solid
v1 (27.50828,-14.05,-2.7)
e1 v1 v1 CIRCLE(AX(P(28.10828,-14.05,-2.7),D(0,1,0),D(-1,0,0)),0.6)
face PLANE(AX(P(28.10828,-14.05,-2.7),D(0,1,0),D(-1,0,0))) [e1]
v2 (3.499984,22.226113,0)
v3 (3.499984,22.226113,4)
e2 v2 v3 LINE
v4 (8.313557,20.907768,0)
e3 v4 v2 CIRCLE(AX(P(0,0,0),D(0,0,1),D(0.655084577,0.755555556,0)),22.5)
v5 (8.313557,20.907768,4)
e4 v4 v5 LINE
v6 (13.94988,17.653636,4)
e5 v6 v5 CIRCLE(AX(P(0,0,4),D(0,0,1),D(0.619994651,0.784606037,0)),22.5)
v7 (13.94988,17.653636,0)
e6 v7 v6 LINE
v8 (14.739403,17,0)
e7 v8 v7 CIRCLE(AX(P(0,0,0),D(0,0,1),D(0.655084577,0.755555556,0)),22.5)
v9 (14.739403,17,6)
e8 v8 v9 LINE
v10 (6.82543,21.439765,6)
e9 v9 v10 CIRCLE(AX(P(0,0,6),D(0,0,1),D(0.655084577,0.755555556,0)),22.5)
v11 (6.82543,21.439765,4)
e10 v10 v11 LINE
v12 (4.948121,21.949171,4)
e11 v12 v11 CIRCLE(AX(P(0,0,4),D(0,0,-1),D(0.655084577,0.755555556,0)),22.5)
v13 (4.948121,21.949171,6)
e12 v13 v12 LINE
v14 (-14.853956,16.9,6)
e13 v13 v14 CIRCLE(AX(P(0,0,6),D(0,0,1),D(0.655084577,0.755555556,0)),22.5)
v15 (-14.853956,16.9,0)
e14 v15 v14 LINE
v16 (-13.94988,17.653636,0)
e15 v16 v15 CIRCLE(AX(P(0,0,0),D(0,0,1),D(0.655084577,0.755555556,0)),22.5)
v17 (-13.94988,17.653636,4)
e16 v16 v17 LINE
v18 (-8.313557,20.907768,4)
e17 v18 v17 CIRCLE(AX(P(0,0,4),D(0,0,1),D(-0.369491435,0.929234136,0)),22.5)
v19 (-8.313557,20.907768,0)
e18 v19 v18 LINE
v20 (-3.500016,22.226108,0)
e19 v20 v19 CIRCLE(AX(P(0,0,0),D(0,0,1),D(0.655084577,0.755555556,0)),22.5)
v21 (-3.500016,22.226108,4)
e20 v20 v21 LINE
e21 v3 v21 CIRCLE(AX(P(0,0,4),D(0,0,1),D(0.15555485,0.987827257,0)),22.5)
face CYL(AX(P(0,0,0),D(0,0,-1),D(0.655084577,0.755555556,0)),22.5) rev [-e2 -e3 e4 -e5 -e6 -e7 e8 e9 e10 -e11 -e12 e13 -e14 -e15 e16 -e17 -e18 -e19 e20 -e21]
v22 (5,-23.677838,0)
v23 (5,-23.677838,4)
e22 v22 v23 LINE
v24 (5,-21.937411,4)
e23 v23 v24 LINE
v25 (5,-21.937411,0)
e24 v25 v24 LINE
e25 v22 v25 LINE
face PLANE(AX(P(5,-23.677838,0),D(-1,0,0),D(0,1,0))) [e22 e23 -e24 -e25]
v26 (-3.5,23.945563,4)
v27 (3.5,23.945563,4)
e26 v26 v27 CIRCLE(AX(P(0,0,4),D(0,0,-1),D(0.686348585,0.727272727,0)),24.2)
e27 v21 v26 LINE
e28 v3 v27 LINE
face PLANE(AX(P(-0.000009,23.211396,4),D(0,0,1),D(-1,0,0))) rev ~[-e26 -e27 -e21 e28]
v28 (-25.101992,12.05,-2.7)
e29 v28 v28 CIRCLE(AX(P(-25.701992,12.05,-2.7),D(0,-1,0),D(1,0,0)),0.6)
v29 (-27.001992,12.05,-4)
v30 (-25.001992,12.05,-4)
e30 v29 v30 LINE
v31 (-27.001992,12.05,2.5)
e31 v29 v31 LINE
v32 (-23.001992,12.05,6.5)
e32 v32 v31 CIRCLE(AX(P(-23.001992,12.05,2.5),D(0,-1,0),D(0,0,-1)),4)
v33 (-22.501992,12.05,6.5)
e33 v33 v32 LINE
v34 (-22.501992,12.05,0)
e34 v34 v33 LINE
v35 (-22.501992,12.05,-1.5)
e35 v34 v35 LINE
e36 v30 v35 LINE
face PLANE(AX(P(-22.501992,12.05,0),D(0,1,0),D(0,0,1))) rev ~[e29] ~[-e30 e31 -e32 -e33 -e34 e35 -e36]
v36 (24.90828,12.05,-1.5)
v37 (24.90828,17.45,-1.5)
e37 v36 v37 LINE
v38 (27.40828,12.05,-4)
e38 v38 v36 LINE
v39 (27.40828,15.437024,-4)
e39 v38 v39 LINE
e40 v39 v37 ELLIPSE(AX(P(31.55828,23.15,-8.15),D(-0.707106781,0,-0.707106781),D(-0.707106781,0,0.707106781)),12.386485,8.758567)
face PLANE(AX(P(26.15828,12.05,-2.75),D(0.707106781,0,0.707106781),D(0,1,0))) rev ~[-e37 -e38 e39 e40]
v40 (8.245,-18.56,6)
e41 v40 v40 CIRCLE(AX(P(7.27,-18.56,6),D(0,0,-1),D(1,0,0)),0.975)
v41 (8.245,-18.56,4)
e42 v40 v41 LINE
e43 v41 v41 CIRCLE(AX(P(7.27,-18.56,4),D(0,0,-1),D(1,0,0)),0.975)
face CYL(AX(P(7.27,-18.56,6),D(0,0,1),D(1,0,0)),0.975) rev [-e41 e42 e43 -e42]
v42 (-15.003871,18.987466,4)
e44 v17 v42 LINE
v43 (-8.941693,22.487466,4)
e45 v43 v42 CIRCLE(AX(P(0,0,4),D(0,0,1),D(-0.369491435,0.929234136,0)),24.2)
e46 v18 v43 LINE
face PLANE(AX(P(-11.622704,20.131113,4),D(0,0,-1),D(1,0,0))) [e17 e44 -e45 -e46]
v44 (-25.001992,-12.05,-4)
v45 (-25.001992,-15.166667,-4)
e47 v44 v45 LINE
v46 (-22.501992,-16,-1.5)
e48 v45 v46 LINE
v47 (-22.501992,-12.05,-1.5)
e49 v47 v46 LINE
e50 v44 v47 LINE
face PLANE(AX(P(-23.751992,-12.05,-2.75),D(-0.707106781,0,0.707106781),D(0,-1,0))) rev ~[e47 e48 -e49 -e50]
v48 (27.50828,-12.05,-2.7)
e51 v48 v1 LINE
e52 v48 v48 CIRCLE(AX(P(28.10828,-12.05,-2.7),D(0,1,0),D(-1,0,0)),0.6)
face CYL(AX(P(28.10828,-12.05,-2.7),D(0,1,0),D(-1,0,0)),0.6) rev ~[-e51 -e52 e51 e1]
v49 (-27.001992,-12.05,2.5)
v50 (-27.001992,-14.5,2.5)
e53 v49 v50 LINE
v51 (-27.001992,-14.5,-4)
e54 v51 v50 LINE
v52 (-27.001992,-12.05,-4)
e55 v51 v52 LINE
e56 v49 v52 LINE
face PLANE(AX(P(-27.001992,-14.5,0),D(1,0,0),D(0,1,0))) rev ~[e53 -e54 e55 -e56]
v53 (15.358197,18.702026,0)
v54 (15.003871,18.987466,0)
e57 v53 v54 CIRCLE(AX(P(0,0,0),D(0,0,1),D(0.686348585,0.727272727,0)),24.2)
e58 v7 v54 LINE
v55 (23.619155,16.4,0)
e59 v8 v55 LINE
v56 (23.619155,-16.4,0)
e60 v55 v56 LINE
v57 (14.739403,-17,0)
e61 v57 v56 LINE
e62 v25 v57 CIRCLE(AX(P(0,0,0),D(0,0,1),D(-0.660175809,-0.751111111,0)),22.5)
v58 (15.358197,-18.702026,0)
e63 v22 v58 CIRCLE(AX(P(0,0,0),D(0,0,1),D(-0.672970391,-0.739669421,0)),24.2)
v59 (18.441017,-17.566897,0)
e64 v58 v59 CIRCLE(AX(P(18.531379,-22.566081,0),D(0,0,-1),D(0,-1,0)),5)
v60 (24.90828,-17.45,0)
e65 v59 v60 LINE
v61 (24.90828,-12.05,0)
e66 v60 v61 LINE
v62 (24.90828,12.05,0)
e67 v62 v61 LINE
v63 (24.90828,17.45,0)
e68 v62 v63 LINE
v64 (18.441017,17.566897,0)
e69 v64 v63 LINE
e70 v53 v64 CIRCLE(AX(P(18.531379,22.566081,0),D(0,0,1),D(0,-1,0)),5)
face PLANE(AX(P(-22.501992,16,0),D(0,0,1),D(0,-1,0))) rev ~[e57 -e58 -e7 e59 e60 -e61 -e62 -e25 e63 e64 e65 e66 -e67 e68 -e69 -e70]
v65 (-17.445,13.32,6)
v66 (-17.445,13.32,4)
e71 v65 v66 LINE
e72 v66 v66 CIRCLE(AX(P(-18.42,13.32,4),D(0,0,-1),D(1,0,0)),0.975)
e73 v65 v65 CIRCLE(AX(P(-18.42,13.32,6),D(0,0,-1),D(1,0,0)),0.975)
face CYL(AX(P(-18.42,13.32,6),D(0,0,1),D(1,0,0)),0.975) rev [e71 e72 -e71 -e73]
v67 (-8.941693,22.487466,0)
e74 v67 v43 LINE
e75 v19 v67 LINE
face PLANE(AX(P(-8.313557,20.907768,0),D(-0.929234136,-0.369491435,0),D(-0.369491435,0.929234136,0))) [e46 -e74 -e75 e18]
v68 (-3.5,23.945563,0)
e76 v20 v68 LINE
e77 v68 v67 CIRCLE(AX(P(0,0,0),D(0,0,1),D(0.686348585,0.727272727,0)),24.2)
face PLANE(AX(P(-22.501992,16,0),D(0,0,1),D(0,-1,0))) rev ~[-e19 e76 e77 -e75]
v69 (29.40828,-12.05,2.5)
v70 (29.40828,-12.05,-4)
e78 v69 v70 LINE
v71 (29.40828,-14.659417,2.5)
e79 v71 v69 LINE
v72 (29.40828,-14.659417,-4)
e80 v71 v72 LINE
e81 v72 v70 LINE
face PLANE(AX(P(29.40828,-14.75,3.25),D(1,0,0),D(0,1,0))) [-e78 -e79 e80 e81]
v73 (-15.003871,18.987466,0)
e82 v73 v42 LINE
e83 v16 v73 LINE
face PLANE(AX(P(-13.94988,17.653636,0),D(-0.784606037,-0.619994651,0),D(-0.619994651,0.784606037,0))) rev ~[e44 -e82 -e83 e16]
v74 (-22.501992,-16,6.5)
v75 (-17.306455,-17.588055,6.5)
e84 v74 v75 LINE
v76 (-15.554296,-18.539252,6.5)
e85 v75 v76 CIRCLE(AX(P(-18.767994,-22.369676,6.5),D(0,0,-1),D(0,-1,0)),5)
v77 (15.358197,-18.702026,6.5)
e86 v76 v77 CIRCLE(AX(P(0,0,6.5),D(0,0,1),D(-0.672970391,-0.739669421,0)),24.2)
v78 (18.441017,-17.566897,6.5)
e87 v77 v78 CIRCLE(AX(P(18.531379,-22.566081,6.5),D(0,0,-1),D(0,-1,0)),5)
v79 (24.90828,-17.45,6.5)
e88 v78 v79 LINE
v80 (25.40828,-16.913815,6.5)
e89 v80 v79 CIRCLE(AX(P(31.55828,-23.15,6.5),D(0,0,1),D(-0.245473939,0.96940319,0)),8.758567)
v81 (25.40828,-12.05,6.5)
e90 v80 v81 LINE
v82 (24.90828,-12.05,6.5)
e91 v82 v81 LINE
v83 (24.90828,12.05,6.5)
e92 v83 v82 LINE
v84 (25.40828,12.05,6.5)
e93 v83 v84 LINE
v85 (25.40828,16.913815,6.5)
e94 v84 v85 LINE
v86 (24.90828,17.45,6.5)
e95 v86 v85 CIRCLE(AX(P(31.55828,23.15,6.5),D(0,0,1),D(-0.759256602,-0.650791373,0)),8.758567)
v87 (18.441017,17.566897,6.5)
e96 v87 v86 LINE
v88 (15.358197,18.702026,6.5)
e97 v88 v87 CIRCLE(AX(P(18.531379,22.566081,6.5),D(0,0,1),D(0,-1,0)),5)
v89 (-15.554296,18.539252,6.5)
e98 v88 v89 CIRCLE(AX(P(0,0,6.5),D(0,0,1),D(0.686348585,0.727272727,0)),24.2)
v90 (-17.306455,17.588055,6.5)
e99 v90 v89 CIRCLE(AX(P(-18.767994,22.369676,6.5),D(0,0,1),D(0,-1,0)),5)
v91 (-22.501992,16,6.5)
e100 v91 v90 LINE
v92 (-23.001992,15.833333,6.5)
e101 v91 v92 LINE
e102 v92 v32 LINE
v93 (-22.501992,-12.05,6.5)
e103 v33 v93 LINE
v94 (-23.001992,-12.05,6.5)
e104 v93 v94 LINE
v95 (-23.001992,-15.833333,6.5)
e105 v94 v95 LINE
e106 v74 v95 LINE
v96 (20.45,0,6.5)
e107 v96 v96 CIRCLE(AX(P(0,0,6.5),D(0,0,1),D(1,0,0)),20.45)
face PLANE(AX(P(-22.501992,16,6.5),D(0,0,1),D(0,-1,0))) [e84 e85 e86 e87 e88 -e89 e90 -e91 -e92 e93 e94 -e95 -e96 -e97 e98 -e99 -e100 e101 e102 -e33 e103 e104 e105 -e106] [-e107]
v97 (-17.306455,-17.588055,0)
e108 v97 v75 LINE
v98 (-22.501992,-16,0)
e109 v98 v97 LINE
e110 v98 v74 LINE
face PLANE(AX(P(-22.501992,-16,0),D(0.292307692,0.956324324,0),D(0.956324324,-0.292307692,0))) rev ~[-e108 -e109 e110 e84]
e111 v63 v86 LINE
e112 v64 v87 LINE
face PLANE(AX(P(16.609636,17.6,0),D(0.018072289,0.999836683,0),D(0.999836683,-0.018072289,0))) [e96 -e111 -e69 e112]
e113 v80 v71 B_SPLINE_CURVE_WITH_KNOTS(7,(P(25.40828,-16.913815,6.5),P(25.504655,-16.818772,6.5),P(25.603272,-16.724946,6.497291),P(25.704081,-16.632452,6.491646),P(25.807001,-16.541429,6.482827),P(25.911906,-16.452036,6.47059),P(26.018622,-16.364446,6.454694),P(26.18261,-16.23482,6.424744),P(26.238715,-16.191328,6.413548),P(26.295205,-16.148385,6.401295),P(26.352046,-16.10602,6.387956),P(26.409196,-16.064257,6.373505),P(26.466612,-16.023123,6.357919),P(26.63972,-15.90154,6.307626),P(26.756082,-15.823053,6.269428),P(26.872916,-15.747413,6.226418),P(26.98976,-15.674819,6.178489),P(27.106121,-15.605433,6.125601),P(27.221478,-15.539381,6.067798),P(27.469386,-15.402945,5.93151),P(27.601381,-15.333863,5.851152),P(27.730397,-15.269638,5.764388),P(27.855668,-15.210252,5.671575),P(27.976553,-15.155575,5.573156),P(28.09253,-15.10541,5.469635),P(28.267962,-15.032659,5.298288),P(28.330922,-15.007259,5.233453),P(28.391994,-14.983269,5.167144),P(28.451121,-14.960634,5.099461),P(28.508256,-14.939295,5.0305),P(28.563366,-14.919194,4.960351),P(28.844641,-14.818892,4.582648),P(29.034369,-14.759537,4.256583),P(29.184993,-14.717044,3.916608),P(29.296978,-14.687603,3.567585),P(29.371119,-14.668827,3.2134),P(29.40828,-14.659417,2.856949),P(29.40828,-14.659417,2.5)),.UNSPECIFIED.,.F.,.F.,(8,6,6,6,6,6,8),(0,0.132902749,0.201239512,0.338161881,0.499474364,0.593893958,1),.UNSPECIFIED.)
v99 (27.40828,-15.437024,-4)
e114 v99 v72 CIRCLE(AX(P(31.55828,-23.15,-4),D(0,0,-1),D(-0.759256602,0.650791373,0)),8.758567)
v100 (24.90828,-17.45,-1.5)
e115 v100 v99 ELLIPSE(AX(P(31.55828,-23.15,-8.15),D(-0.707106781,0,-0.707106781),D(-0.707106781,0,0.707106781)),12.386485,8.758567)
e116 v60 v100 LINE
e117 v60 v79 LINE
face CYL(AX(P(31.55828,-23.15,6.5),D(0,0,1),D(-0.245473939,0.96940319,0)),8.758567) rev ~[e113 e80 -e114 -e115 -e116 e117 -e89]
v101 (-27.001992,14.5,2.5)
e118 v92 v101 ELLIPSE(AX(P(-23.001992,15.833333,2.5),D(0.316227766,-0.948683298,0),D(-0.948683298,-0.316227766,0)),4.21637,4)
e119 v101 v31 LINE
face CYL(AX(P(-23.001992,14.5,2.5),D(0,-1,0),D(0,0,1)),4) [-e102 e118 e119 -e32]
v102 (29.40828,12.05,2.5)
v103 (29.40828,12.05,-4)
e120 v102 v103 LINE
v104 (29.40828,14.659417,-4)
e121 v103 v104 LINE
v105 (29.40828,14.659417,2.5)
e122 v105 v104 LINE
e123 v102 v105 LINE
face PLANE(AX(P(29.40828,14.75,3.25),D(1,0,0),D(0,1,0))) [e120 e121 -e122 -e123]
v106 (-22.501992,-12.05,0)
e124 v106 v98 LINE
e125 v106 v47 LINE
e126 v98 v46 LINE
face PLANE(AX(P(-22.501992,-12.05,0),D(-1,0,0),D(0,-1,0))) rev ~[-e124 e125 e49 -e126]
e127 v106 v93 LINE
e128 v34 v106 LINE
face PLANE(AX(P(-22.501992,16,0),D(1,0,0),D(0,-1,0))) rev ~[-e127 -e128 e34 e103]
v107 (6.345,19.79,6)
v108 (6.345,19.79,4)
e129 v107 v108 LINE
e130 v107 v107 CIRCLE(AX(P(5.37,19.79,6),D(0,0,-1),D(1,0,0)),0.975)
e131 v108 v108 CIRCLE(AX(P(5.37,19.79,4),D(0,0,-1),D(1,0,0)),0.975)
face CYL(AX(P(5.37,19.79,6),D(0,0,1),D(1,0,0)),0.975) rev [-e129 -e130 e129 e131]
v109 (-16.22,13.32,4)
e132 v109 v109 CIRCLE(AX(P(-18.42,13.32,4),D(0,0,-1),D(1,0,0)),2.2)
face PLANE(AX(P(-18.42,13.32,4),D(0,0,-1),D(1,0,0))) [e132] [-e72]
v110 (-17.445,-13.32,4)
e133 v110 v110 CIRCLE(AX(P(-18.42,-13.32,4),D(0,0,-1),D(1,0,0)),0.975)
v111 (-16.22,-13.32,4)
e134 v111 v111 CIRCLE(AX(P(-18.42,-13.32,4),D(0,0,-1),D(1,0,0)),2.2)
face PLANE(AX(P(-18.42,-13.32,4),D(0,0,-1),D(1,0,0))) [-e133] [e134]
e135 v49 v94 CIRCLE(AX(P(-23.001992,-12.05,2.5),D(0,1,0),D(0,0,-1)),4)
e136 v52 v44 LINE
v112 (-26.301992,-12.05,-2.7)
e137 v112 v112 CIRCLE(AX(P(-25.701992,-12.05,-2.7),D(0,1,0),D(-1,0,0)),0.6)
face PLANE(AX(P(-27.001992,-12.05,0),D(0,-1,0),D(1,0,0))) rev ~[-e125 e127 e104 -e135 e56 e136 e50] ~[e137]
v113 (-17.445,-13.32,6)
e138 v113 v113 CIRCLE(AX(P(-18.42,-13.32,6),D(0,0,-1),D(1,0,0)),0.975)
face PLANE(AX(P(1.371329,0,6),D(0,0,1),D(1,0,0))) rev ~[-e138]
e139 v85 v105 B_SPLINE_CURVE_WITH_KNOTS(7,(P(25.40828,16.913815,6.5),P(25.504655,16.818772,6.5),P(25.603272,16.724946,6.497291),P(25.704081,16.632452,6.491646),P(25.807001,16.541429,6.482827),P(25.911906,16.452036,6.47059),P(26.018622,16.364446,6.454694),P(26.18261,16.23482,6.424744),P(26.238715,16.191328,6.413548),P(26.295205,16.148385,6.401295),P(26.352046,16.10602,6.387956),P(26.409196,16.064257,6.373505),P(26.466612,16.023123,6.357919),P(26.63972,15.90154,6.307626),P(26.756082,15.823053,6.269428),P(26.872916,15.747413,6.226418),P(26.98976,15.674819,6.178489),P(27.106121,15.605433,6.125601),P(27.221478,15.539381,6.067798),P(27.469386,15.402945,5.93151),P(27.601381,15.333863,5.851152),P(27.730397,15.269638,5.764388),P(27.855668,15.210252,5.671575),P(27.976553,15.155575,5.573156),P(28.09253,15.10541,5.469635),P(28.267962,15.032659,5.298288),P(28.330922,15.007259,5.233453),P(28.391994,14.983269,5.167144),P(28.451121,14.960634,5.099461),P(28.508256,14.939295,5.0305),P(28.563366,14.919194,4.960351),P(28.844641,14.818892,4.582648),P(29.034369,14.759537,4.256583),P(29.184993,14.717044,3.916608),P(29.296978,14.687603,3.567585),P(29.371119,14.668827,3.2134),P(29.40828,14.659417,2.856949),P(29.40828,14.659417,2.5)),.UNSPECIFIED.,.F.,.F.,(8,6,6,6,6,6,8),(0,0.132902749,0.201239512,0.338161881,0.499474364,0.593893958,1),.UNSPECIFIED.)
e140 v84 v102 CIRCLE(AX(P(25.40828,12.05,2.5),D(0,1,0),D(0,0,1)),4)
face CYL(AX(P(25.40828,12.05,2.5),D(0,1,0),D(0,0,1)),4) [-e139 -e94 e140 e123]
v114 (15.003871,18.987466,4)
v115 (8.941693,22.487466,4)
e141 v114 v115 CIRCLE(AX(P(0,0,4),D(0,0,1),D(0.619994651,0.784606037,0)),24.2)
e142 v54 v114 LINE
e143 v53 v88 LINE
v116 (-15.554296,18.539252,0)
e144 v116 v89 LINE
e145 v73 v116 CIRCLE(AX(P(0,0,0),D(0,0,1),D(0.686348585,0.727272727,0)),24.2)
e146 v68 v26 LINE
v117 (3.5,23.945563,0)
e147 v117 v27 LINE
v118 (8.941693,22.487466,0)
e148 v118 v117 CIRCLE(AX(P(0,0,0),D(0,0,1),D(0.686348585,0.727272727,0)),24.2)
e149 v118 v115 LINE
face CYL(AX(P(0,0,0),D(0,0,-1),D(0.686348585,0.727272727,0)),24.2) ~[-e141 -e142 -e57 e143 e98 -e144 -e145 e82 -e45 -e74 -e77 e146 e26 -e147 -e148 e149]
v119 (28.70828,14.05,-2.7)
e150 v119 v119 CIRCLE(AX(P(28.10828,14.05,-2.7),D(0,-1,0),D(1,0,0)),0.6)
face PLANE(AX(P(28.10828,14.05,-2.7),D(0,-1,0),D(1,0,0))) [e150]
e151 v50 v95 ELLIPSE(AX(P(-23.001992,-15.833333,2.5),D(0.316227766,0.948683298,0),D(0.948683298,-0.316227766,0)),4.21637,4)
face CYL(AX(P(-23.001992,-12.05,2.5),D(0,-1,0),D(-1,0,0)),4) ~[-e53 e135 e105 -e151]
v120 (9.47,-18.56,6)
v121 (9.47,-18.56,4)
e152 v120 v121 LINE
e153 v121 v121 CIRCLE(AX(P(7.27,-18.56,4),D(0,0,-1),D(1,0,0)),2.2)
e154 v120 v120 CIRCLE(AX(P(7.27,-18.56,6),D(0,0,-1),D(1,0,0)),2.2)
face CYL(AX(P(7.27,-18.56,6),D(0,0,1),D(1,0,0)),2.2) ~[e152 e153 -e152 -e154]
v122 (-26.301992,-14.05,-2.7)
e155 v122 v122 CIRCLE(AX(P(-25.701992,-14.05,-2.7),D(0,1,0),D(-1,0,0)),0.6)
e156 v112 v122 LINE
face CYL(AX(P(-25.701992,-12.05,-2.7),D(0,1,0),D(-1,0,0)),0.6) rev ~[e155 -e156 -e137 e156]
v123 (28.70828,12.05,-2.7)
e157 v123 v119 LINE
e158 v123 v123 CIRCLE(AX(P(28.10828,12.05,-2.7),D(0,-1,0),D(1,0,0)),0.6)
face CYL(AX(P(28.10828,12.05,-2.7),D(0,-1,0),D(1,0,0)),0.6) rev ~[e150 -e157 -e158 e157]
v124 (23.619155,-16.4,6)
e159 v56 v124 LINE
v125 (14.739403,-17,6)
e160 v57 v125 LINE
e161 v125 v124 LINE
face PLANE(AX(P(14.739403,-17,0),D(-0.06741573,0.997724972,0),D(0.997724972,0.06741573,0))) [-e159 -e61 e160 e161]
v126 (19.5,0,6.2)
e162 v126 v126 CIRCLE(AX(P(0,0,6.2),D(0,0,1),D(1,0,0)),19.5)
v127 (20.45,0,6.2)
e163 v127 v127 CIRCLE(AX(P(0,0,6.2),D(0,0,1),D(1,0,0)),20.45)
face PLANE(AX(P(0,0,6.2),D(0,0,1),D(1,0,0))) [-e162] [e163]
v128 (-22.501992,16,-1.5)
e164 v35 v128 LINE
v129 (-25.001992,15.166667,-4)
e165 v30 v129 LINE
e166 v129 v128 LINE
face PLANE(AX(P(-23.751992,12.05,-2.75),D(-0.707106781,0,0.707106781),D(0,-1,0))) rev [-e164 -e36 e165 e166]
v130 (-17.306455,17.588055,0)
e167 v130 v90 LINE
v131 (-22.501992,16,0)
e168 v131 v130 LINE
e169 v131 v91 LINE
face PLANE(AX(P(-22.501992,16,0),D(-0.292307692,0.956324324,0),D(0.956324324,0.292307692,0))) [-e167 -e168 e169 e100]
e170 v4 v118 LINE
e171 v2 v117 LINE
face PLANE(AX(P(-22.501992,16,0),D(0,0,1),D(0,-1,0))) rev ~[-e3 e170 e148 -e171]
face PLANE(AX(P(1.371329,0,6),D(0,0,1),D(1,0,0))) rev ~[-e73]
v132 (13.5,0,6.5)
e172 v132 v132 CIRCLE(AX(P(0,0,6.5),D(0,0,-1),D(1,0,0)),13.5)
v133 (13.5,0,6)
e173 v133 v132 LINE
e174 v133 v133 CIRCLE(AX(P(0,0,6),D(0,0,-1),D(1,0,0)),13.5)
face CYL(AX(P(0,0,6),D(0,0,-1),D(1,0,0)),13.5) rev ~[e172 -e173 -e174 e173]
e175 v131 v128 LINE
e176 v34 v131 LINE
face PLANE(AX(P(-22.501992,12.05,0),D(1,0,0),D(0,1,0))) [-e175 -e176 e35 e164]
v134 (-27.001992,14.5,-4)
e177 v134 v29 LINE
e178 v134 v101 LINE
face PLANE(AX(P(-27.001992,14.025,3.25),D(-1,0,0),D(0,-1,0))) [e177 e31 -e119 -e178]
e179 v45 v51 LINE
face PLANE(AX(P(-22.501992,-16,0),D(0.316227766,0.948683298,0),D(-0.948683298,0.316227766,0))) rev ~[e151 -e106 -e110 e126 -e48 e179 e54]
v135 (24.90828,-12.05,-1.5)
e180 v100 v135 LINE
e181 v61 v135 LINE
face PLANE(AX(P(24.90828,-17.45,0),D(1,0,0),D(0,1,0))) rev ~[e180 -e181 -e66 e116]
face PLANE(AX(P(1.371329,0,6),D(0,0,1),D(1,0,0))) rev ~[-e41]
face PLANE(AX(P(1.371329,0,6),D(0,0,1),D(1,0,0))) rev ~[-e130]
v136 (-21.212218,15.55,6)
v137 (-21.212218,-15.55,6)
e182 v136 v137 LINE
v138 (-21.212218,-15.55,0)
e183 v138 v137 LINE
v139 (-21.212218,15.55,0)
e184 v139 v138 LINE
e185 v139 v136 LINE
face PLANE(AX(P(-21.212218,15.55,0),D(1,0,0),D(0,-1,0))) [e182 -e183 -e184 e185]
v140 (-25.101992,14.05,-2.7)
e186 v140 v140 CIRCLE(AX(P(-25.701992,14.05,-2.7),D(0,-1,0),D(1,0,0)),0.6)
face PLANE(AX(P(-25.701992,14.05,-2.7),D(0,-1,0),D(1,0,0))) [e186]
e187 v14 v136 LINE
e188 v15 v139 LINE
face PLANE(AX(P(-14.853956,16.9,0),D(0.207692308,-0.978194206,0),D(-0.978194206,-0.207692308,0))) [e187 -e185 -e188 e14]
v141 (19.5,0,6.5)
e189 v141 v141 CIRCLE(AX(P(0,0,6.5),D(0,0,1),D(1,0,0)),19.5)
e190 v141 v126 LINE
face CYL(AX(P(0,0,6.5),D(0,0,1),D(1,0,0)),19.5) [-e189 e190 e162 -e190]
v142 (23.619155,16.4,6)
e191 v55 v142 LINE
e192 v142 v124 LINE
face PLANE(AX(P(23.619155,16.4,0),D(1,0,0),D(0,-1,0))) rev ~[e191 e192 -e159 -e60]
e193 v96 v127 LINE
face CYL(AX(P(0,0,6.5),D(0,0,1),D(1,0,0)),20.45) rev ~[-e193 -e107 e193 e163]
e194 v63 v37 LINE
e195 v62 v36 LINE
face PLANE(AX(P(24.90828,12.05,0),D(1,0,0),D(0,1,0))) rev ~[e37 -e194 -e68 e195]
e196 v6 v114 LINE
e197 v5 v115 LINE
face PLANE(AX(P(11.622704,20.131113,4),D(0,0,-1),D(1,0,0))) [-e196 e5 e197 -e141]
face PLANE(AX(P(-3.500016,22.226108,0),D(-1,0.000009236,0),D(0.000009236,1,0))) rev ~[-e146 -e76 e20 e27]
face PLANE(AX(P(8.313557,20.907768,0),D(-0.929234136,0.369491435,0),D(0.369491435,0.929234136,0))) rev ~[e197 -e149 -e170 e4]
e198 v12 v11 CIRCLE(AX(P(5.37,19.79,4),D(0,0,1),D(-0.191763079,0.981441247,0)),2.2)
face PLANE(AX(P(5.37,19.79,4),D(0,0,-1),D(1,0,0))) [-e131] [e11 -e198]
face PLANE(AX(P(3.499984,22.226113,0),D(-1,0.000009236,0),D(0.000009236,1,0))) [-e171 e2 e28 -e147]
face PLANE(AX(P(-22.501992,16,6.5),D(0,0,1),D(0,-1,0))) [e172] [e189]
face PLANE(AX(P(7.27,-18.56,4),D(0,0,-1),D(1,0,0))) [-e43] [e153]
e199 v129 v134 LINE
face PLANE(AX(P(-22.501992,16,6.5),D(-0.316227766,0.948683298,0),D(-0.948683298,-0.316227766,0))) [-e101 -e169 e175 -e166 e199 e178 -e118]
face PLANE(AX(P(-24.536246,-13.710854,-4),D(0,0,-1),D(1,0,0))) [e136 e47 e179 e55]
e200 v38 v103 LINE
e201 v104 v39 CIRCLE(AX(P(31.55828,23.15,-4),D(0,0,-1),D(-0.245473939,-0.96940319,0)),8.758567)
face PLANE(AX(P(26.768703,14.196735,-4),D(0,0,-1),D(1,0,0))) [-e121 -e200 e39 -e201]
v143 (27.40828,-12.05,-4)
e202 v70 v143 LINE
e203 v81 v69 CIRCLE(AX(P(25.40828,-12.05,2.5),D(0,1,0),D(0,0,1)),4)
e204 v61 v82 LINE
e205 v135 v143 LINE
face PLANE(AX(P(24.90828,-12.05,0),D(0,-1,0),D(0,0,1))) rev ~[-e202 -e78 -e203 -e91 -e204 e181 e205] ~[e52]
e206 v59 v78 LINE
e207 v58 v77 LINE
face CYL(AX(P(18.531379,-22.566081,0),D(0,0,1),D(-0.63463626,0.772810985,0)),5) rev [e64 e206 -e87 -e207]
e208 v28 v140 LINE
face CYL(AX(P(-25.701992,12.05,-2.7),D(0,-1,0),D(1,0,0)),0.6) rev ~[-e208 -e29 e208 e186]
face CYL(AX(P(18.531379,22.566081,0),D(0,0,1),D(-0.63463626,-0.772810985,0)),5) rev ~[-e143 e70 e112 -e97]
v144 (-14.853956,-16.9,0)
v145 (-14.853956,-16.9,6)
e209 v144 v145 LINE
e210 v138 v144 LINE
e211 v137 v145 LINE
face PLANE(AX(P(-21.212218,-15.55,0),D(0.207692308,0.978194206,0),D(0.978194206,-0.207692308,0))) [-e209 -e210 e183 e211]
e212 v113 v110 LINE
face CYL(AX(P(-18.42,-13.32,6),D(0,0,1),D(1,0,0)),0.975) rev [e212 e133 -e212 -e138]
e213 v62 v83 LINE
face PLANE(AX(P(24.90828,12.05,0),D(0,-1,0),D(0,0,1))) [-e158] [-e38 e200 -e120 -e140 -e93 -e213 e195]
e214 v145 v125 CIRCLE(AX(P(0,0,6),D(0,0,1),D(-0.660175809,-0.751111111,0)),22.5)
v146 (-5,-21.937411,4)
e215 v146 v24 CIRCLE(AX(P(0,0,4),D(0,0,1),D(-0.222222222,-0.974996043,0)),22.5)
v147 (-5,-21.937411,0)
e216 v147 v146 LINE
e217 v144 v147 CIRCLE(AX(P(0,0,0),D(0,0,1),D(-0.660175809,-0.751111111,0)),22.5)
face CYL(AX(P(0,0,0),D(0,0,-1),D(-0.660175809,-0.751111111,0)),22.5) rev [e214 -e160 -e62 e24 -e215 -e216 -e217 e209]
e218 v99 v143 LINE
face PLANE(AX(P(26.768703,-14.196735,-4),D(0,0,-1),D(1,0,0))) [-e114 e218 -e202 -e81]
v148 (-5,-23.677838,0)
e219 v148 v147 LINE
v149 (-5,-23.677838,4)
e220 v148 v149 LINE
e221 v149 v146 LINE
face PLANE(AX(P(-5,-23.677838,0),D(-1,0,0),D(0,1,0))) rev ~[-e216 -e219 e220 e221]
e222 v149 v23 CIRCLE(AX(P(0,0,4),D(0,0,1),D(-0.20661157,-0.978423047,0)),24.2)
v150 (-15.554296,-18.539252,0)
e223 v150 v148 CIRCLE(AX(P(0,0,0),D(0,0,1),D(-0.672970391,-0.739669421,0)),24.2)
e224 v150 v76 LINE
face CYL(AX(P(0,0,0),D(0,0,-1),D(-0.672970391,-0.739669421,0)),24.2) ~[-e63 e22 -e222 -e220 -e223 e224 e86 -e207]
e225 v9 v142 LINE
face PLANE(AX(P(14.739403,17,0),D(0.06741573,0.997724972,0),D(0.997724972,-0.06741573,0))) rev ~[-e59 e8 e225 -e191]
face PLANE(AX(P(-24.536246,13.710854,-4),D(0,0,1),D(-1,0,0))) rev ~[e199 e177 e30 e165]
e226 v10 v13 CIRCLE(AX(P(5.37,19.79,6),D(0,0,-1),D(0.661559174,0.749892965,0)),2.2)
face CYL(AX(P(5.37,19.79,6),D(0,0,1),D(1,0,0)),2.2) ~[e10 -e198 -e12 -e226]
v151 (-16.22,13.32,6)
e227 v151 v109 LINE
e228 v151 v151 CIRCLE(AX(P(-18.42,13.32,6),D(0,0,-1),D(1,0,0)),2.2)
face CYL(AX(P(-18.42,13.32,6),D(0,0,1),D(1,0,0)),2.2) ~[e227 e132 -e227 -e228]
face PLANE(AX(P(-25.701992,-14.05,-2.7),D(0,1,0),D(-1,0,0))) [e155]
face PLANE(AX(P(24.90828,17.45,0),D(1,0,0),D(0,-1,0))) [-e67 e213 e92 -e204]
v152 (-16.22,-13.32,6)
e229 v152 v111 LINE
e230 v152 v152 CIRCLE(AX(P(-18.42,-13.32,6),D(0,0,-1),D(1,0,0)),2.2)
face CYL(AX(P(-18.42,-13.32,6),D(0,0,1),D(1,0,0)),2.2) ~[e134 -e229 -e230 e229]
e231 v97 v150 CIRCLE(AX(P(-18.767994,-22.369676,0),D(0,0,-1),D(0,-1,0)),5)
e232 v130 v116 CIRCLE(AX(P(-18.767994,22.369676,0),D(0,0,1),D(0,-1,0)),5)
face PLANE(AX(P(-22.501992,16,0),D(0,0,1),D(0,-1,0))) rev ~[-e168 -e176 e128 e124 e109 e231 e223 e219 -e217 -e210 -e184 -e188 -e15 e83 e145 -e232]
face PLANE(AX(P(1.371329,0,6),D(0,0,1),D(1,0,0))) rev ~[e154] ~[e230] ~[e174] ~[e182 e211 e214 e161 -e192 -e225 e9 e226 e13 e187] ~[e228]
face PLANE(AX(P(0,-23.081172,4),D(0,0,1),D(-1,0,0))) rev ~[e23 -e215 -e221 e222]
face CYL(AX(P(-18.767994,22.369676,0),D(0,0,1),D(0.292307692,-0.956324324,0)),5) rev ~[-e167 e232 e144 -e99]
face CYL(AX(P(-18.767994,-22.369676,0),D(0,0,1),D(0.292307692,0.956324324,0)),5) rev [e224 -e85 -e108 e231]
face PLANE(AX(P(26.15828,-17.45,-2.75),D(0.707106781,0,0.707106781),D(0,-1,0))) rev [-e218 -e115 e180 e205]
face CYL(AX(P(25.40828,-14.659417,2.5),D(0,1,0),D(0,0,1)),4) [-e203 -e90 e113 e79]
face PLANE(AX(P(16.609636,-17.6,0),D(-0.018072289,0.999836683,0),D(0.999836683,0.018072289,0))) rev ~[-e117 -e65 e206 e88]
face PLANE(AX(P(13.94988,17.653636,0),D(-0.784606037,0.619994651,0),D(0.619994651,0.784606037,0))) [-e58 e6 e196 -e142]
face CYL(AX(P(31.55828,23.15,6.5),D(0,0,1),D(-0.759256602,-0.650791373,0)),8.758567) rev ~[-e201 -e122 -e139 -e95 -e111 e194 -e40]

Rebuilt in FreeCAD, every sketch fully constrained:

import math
import FreeCAD as App
import Part
import Sketcher
from FreeCAD import Vector
Q = App.Units.Quantity


def edges_at(feature, points):
    """Names of the edges that pass closest to the given points."""
    edges = feature.Shape.Edges
    near = lambda p: min(range(len(edges)), key=lambda i: edges[i].distToShape(Part.Vertex(*p))[0])
    return sorted({f"Edge{near(p) + 1}" for p in points})


def add_polygon(sketch, points):
    """Adds a closed chain of lines whose ends are joined by coincident constraints."""
    first, n = sketch.GeometryCount, len(points)
    for a, b in zip(points, points[1:] + points[:1]):
        sketch.addGeometry(Part.LineSegment(App.Vector(*a, 0), App.Vector(*b, 0)), False)
    for i in range(n):
        sketch.addConstraint(Sketcher.Constraint("Coincident", first + i, 2, first + (i + 1) % n, 1))

doc = App.newDocument("Part")
body = doc.addObject("PartDesign::Body", "Body")

# Sketch on XY plane
sketch1 = body.newObject("Sketcher::SketchObject", "Sketch")
sketch1.AttachmentSupport = (doc.getObject("XY_Plane"), [""])
sketch1.MapMode = "FlatFace"
sketch1.addGeometry([
    Part.LineSegment(Vector(-22.501992, 16, 0), Vector(-22.501992, -16, 0)),  # 0
    Part.LineSegment(Vector(-22.501992, -16, 0), Vector(-16.285883, -17.9, 0)),  # 1
    Part.ArcOfCircle(Part.Circle(Vector(0, 0, 0), Vector(0, 0, 1), 24.2), math.radians(-132.296737), math.radians(-46.658242)),  # 2
    Part.LineSegment(Vector(16.609636, -17.6, 0), Vector(24.90828, -17.45, 0)),  # 3
    Part.LineSegment(Vector(24.90828, -17.45, 0), Vector(24.90828, 17.45, 0)),  # 4
    Part.LineSegment(Vector(24.90828, 17.45, 0), Vector(16.609636, 17.6, 0)),  # 5
    Part.ArcOfCircle(Part.Circle(Vector(0, 0, 0), Vector(0, 0, 1), 24.2), math.radians(46.658242), math.radians(132.296737)),  # 6
    Part.LineSegment(Vector(-16.285883, 17.9, 0), Vector(-22.501992, 16, 0)),  # 7
], False)
sketch1.addConstraint([
    Sketcher.Constraint("Coincident", 0, 2, 1, 1),
    Sketcher.Constraint("Coincident", 1, 2, 2, 1),
    Sketcher.Constraint("Coincident", 2, 2, 3, 1),
    Sketcher.Constraint("Coincident", 3, 2, 4, 1),
    Sketcher.Constraint("Coincident", 4, 2, 5, 1),
    Sketcher.Constraint("Coincident", 5, 2, 6, 1),
    Sketcher.Constraint("Coincident", 6, 2, 7, 1),
    Sketcher.Constraint("Coincident", 7, 2, 0, 1),
    Sketcher.Constraint("Vertical", 0),
    Sketcher.Constraint("Vertical", 4),
    Sketcher.Constraint("Coincident", 2, 3, -1, 1),
    Sketcher.Constraint("Coincident", 6, 3, -1, 1),
    Sketcher.Constraint("Equal", 2, 6),
    Sketcher.Constraint("Vertical", 2, 2, 5, 2),
    Sketcher.Constraint("Vertical", 1, 2, 6, 2),
    Sketcher.Constraint("Equal", 3, 5),
    Sketcher.Constraint("Equal", 1, 7),
    Sketcher.Constraint("Radius", 2, Q("24.2 mm")),
    Sketcher.Constraint("DistanceY", 0, 2, 0, 1, Q("32 mm")),
    Sketcher.Constraint("DistanceY", 4, 1, 4, 2, Q("34.9 mm")),
    Sketcher.Constraint("Distance", 1, Q("6.5 mm")),
    Sketcher.Constraint("Distance", 3, Q("8.3 mm")),
    Sketcher.Constraint("DistanceY", 1, 2, -1, 1, Q("17.9 mm")),
    Sketcher.Constraint("DistanceY", 2, 2, -1, 1, Q("17.6 mm")),
])
pad1 = body.newObject("PartDesign::Pad", "Pad")
pad1.Profile = sketch1
pad1.Length = 6.5

# Sketch on XY plane
sketch2 = body.newObject("Sketcher::SketchObject", "Sketch001")
sketch2.AttachmentSupport = (doc.getObject("XY_Plane"), [""])
sketch2.MapMode = "FlatFace"
sketch2.addGeometry([
    Part.LineSegment(Vector(-14.853956, 16.9, 0), Vector(-21.212218, 15.55, 0)),  # 0
    Part.LineSegment(Vector(-21.212218, 15.55, 0), Vector(-21.212218, -15.55, 0)),  # 1
    Part.LineSegment(Vector(-21.212218, -15.55, 0), Vector(-14.853956, -16.9, 0)),  # 2
    Part.ArcOfCircle(Part.Circle(Vector(0, 0, 0), Vector(0, 0, 1), 22.5), math.radians(-131.313282), math.radians(-49.073937)),  # 3
    Part.LineSegment(Vector(14.739403, -17, 0), Vector(23.619155, -16.4, 0)),  # 4
    Part.LineSegment(Vector(23.619155, -16.4, 0), Vector(23.619155, 16.4, 0)),  # 5
    Part.LineSegment(Vector(23.619155, 16.4, 0), Vector(14.739403, 17, 0)),  # 6
    Part.ArcOfCircle(Part.Circle(Vector(0, 0, 0), Vector(0, 0, 1), 22.5), math.radians(49.073937), math.radians(131.313282)),  # 7
], False)
sketch2.addConstraint([
    Sketcher.Constraint("Coincident", 0, 2, 1, 1),
    Sketcher.Constraint("Coincident", 1, 2, 2, 1),
    Sketcher.Constraint("Coincident", 2, 2, 3, 1),
    Sketcher.Constraint("Coincident", 3, 2, 4, 1),
    Sketcher.Constraint("Coincident", 4, 2, 5, 1),
    Sketcher.Constraint("Coincident", 5, 2, 6, 1),
    Sketcher.Constraint("Coincident", 6, 2, 7, 1),
    Sketcher.Constraint("Coincident", 7, 2, 0, 1),
    Sketcher.Constraint("Vertical", 1),
    Sketcher.Constraint("Vertical", 5),
    Sketcher.Constraint("Coincident", 3, 3, -1, 1),
    Sketcher.Constraint("Coincident", 7, 3, -1, 1),
    Sketcher.Constraint("Equal", 3, 7),
    Sketcher.Constraint("Vertical", 3, 2, 6, 2),
    Sketcher.Constraint("Vertical", 2, 2, 7, 2),
    Sketcher.Constraint("Equal", 0, 2),
    Sketcher.Constraint("Equal", 4, 6),
    Sketcher.Constraint("Radius", 3, Q("22.5 mm")),
    Sketcher.Constraint("DistanceY", 1, 2, 1, 1, Q("31.1 mm")),
    Sketcher.Constraint("DistanceY", 5, 1, 5, 2, Q("32.8 mm")),
    Sketcher.Constraint("DistanceY", 3, 2, -1, 1, Q("17 mm")),
    Sketcher.Constraint("Distance", 0, Q("6.5 mm")),
    Sketcher.Constraint("Distance", 4, Q("8.9 mm")),
    Sketcher.Constraint("DistanceY", 2, 2, -1, 1, Q("16.9 mm")),
])
pocket1 = body.newObject("PartDesign::Pocket", "Pocket")
pocket1.Profile = sketch2
pocket1.Length = 6
pocket1.Reversed = True

# Sketch on XY plane
sketch3 = body.newObject("Sketcher::SketchObject", "Sketch002")
sketch3.AttachmentSupport = (doc.getObject("XY_Plane"), [""])
sketch3.MapMode = "FlatFace"
sketch3.AttachmentOffset = App.Placement(Vector(0, 0, 6), App.Rotation())
sketch3.addGeometry(Part.Circle(Vector(0, 0, 0), Vector(0, 0, 1), 13.5), False)
sketch3.addConstraint([
    Sketcher.Constraint("Coincident", 0, 3, -1, 1),
    Sketcher.Constraint("Diameter", 0, Q("27 mm")),
])
pocket2 = body.newObject("PartDesign::Pocket", "Pocket001")
pocket2.Profile = sketch3
pocket2.Length = 1
pocket2.Reversed = True

# Sketch on YZ plane
sketch4 = body.newObject("Sketcher::SketchObject", "Sketch003")
sketch4.AttachmentSupport = (doc.getObject("YZ_Plane"), [""])
sketch4.MapMode = "FlatFace"
sketch4.AttachmentOffset = App.Placement(Vector(0, 0, 24.90828), App.Rotation())
add_polygon(sketch4, [(-17.45, 6.5), (-17.45, 0), (-12.05, 0), (-12.05, 6.5)])  # lines 0-3
add_polygon(sketch4, [(12.05, 6.5), (12.05, 0), (17.45, 0), (17.45, 6.5)])  # lines 4-7
sketch4.addConstraint([
    Sketcher.Constraint("Vertical", 0),
    Sketcher.Constraint("Horizontal", 1),
    Sketcher.Constraint("Vertical", 2),
    Sketcher.Constraint("Horizontal", 3),
    Sketcher.Constraint("Vertical", 4),
    Sketcher.Constraint("Horizontal", 5),
    Sketcher.Constraint("Vertical", 6),
    Sketcher.Constraint("Horizontal", 7),
    Sketcher.Constraint("Symmetric", 1, 2, 4, 2, -1, 1),
    Sketcher.Constraint("Symmetric", 0, 2, 5, 2, -2),
    Sketcher.Constraint("Horizontal", 3, 2, 6, 2),
    Sketcher.Constraint("DistanceX", 1, 1, 1, 2, Q("5.4 mm")),
    Sketcher.Constraint("DistanceY", 0, 2, 0, 1, Q("6.5 mm")),
    Sketcher.Constraint("DistanceX", 1, 2, 4, 2, Q("24.1 mm")),
])
pad2 = body.newObject("PartDesign::Pad", "Pad001")
pad2.Profile = sketch4
pad2.Length = 4.5

# Sketch on XY plane
sketch5 = body.newObject("Sketcher::SketchObject", "Sketch004")
sketch5.AttachmentSupport = (doc.getObject("XY_Plane"), [""])
sketch5.MapMode = "FlatFace"
sketch5.AttachmentOffset = App.Placement(Vector(0, 0, 6.5), App.Rotation())
sketch5.addGeometry([
    Part.ArcOfCircle(Part.Circle(Vector(31.55828, 23.15, 0), Vector(0, 0, 1), 8.758567), math.radians(-139.398705), math.radians(-104.209844)),  # 0
    Part.LineSegment(Vector(29.40828, 14.659417, 0), Vector(29.40828, 17.45, 0)),  # 1
    Part.LineSegment(Vector(29.40828, 17.45, 0), Vector(24.90828, 17.45, 0)),  # 2
    Part.ArcOfCircle(Part.Circle(Vector(31.55828, -23.15, 0), Vector(0, 0, 1), 8.758567), math.radians(104.209844), math.radians(139.398705)),  # 3
    Part.LineSegment(Vector(24.90828, -17.45, 0), Vector(29.40828, -17.45, 0)),  # 4
    Part.LineSegment(Vector(29.40828, -17.45, 0), Vector(29.40828, -14.659417, 0)),  # 5
], False)
sketch5.addConstraint([
    Sketcher.Constraint("Coincident", 0, 2, 1, 1),
    Sketcher.Constraint("Coincident", 1, 2, 2, 1),
    Sketcher.Constraint("Coincident", 2, 2, 0, 1),
    Sketcher.Constraint("Coincident", 3, 2, 4, 1),
    Sketcher.Constraint("Coincident", 4, 2, 5, 1),
    Sketcher.Constraint("Coincident", 5, 2, 3, 1),
    Sketcher.Constraint("Vertical", 1),
    Sketcher.Constraint("Horizontal", 2),
    Sketcher.Constraint("Horizontal", 4),
    Sketcher.Constraint("Vertical", 5),
    Sketcher.Constraint("Equal", 0, 3),
    Sketcher.Constraint("Symmetric", 0, 3, 3, 3, -1),
    Sketcher.Constraint("Symmetric", 1, 2, 4, 2, -1),
    Sketcher.Constraint("DistanceX", 2, 2, 2, 1, Q("4.5 mm")),
    Sketcher.Constraint("DistanceY", 3, 3, 0, 3, Q("46.3 mm")),
    Sketcher.Constraint("DistanceY", 1, 2, 0, 3, Q("5.7 mm")),
    Sketcher.Constraint("DistanceX", 0, 2, 0, 3, Q("2.15 mm")),
    Sketcher.Constraint("DistanceX", -1, 1, 0, 3, Q("31.55828 mm")),
])
pocket3 = body.newObject("PartDesign::Pocket", "Pocket002")
pocket3.Profile = sketch5
pocket3.Length = 10

# Sketch on YZ plane
sketch6 = body.newObject("Sketcher::SketchObject", "Sketch005")
sketch6.AttachmentSupport = (doc.getObject("YZ_Plane"), [""])
sketch6.MapMode = "FlatFace"
sketch6.AttachmentOffset = App.Placement(Vector(0, 0, -22.501992), App.Rotation())
add_polygon(sketch6, [(16, 6.5), (16, 0), (12.05, 0), (12.05, 6.5)])  # lines 0-3
add_polygon(sketch6, [(-12.05, 6.5), (-12.05, 0), (-16, 0), (-16, 6.5)])  # lines 4-7
sketch6.addConstraint([
    Sketcher.Constraint("Vertical", 0),
    Sketcher.Constraint("Horizontal", 1),
    Sketcher.Constraint("Vertical", 2),
    Sketcher.Constraint("Horizontal", 3),
    Sketcher.Constraint("Vertical", 4),
    Sketcher.Constraint("Horizontal", 5),
    Sketcher.Constraint("Vertical", 6),
    Sketcher.Constraint("Horizontal", 7),
    Sketcher.Constraint("Symmetric", 1, 2, 4, 2, -1, 1),
    Sketcher.Constraint("Symmetric", 0, 2, 5, 2, -2),
    Sketcher.Constraint("Horizontal", 3, 2, 6, 2),
    Sketcher.Constraint("DistanceY", 0, 2, 0, 1, Q("6.5 mm")),
    Sketcher.Constraint("DistanceX", -1, 1, 0, 2, Q("16 mm")),
    Sketcher.Constraint("DistanceX", 1, 2, 1, 1, Q("3.95 mm")),
])
pad3 = body.newObject("PartDesign::Pad", "Pad002")
pad3.Profile = sketch6
pad3.Length = 4.5
pad3.Reversed = True

# Sketch on XY plane
sketch7 = body.newObject("Sketcher::SketchObject", "Sketch006")
sketch7.AttachmentSupport = (doc.getObject("XY_Plane"), [""])
sketch7.MapMode = "FlatFace"
sketch7.AttachmentOffset = App.Placement(Vector(0, 0, 6.5), App.Rotation())
add_polygon(sketch7, [(-22.501992, 16), (-27.001992, 16), (-27.001992, 14.5)])  # lines 0-2
add_polygon(sketch7, [(-22.501992, -16), (-27.001992, -14.5), (-27.001992, -16)])  # lines 3-5
sketch7.addConstraint([
    Sketcher.Constraint("Horizontal", 0),
    Sketcher.Constraint("Vertical", 1),
    Sketcher.Constraint("Vertical", 4),
    Sketcher.Constraint("Horizontal", 5),
    Sketcher.Constraint("Symmetric", 1, 2, 3, 2, -1),
    Sketcher.Constraint("Symmetric", 2, 2, 5, 2, -1),
    Sketcher.Constraint("DistanceX", 0, 2, 0, 1, Q("4.5 mm")),
    Sketcher.Constraint("DistanceY", 1, 2, 1, 1, Q("1.5 mm")),
    Sketcher.Constraint("DistanceY", -1, 1, 0, 2, Q("16 mm")),
    Sketcher.Constraint("DistanceX", 0, 2, -1, 1, Q("27.001992 mm")),
])
pocket4 = body.newObject("PartDesign::Pocket", "Pocket003")
pocket4.Profile = sketch7
pocket4.Length = 10

# Sketch on XY plane
sketch8 = body.newObject("Sketcher::SketchObject", "Sketch007")
sketch8.AttachmentSupport = (doc.getObject("XY_Plane"), [""])
sketch8.MapMode = "FlatFace"
sketch8.AttachmentOffset = App.Placement(Vector(0, 0, 6.5), App.Rotation())
sketch8.addGeometry([
    Part.Circle(Vector(0, 0, 0), Vector(0, 0, 1), 20.45),
    Part.Circle(Vector(0, 0, 0), Vector(0, 0, 1), 19.5),
], False)
sketch8.addConstraint([
    Sketcher.Constraint("Coincident", 0, 3, -1, 1),
    Sketcher.Constraint("Coincident", 1, 3, -1, 1),
    Sketcher.Constraint("Diameter", 1, Q("39 mm")),
    Sketcher.Constraint("Diameter", 0, Q("40.9 mm")),
])
pocket5 = body.newObject("PartDesign::Pocket", "Pocket004")
pocket5.Profile = sketch8
pocket5.Length = 0.3

# Sketch on XY plane
sketch9 = body.newObject("Sketcher::SketchObject", "Sketch008")
sketch9.AttachmentSupport = (doc.getObject("XY_Plane"), [""])
sketch9.MapMode = "FlatFace"
sketch9.AttachmentOffset = App.Placement(Vector(0, 0, 6), App.Rotation())
sketch9.addGeometry([
    Part.Circle(Vector(-18.42, -13.32, 0), Vector(0, 0, 1), 2.2),  # 0
    Part.Circle(Vector(-18.42, -13.32, 0), Vector(0, 0, 1), 0.975),  # 1
    Part.Circle(Vector(7.27, -18.56, 0), Vector(0, 0, 1), 2.2),  # 2
    Part.Circle(Vector(7.27, -18.56, 0), Vector(0, 0, 1), 0.975),  # 3
    Part.Circle(Vector(5.37, 19.79, 0), Vector(0, 0, 1), 2.2),  # 4
    Part.Circle(Vector(5.37, 19.79, 0), Vector(0, 0, 1), 0.975),  # 5
    Part.Circle(Vector(-18.42, 13.32, 0), Vector(0, 0, 1), 2.2),  # 6
    Part.Circle(Vector(-18.42, 13.32, 0), Vector(0, 0, 1), 0.975),  # 7
], False)
sketch9.addConstraint([
    Sketcher.Constraint("Coincident", 1, 3, 0, 3),
    Sketcher.Constraint("Coincident", 3, 3, 2, 3),
    Sketcher.Constraint("Coincident", 5, 3, 4, 3),
    Sketcher.Constraint("Coincident", 7, 3, 6, 3),
    Sketcher.Constraint("Equal", 0, 2),
    Sketcher.Constraint("Equal", 1, 3),
    Sketcher.Constraint("Equal", 2, 4),
    Sketcher.Constraint("Equal", 3, 5),
    Sketcher.Constraint("Equal", 4, 6),
    Sketcher.Constraint("Equal", 5, 7),
    Sketcher.Constraint("Symmetric", 0, 3, 6, 3, -1),
    Sketcher.Constraint("Diameter", 0, Q("4.4 mm")),
    Sketcher.Constraint("Diameter", 1, Q("1.95 mm")),
    Sketcher.Constraint("DistanceX", 4, 3, 2, 3, Q("1.9 mm")),
    Sketcher.Constraint("DistanceX", 0, 3, -1, 1, Q("18.42 mm")),
    Sketcher.Constraint("DistanceY", 0, 3, -1, 1, Q("13.32 mm")),
    Sketcher.Constraint("DistanceX", -1, 1, 2, 3, Q("7.27 mm")),
    Sketcher.Constraint("DistanceY", 2, 3, -1, 1, Q("18.56 mm")),
    Sketcher.Constraint("DistanceY", -1, 1, 4, 3, Q("19.79 mm")),
])
pad4 = body.newObject("PartDesign::Pad", "Pad003")
pad4.Profile = sketch9
pad4.Length = 2
pad4.Reversed = True

# Sketch on XY plane
sketch10 = body.newObject("Sketcher::SketchObject", "Sketch009")
sketch10.AttachmentSupport = (doc.getObject("XY_Plane"), [""])
sketch10.MapMode = "FlatFace"
sketch10.addGeometry([
    Part.LineSegment(Vector(5, -23.677838, 0), Vector(5, -21.937411, 0)),
    Part.ArcOfCircle(Part.Circle(Vector(0, 0, 0), Vector(0, 0, 1), 22.5), math.radians(-102.839588), math.radians(-77.160412)),
    Part.LineSegment(Vector(-5, -21.937411, 0), Vector(-5, -23.677838, 0)),
    Part.ArcOfCircle(Part.Circle(Vector(0, 0, 0), Vector(0, 0, 1), 24.2), math.radians(-101.923855), math.radians(-78.076145)),
], False)
sketch10.addConstraint([
    Sketcher.Constraint("Coincident", 0, 2, 1, 2),
    Sketcher.Constraint("Coincident", 1, 1, 2, 1),
    Sketcher.Constraint("Coincident", 2, 2, 3, 1),
    Sketcher.Constraint("Coincident", 3, 2, 0, 1),
    Sketcher.Constraint("Vertical", 0),
    Sketcher.Constraint("Vertical", 2),
    Sketcher.Constraint("Coincident", 1, 3, -1, 1),
    Sketcher.Constraint("Coincident", 3, 3, -1, 1),
    Sketcher.Constraint("Horizontal", 0, 2, 1, 1),
    Sketcher.Constraint("Radius", 1, Q("22.5 mm")),
    Sketcher.Constraint("Radius", 3, Q("24.2 mm")),
    Sketcher.Constraint("DistanceX", -1, 1, 0, 2, Q("5 mm")),
])
pocket6 = body.newObject("PartDesign::Pocket", "Pocket005")
pocket6.Profile = sketch10
pocket6.Length = 4
pocket6.Reversed = True

# Sketch on XY plane
sketch11 = body.newObject("Sketcher::SketchObject", "Sketch010")
sketch11.AttachmentSupport = (doc.getObject("XY_Plane"), [""])
sketch11.MapMode = "FlatFace"
sketch11.addGeometry([
    Part.LineSegment(Vector(3.499984, 22.226113, 0), Vector(3.5, 23.945563, 0)),  # 0
    Part.ArcOfCircle(Part.Circle(Vector(0, 0.000186, 0), Vector(0, 0, 1), 24.199816), math.radians(81.684192), math.radians(98.315808)),  # 1
    Part.LineSegment(Vector(-3.5, 23.945563, 0), Vector(-3.500016, 22.226108, 0)),  # 2
    Part.ArcOfCircle(Part.Circle(Vector(0, 0, 0), Vector(0, 0, 1), 22.5), math.radians(81.051023), math.radians(98.949059)),  # 3
    Part.ArcOfCircle(Part.Circle(Vector(0, 0, 0), Vector(0, 0, 1), 22.5), math.radians(51.684256), math.radians(68.315744)),  # 4
    Part.LineSegment(Vector(13.94988, 17.653636, 0), Vector(15.003871, 18.987466, 0)),  # 5
    Part.ArcOfCircle(Part.Circle(Vector(0, 0, 0), Vector(0, 0, 1), 24.2), math.radians(51.684256), math.radians(68.315744)),  # 6
    Part.LineSegment(Vector(8.941693, 22.487466, 0), Vector(8.313557, 20.907768, 0)),  # 7
    Part.ArcOfCircle(Part.Circle(Vector(0, 0, 0), Vector(0, 0, 1), 22.5), math.radians(111.684256), math.radians(128.315744)),  # 8
    Part.LineSegment(Vector(-8.313557, 20.907768, 0), Vector(-8.941693, 22.487466, 0)),  # 9
    Part.ArcOfCircle(Part.Circle(Vector(0, 0, 0), Vector(0, 0, 1), 24.2), math.radians(111.684256), math.radians(128.315744)),  # 10
    Part.LineSegment(Vector(-15.003871, 18.987466, 0), Vector(-13.94988, 17.653636, 0)),  # 11
], False)
sketch11.addConstraint([
    Sketcher.Constraint("Coincident", 0, 2, 1, 1),
    Sketcher.Constraint("Coincident", 1, 2, 2, 1),
    Sketcher.Constraint("Coincident", 2, 2, 3, 2),
    Sketcher.Constraint("Coincident", 3, 1, 0, 1),
    Sketcher.Constraint("Coincident", 4, 1, 5, 1),
    Sketcher.Constraint("Coincident", 5, 2, 6, 1),
    Sketcher.Constraint("Coincident", 6, 2, 7, 1),
    Sketcher.Constraint("Coincident", 7, 2, 4, 2),
    Sketcher.Constraint("Coincident", 8, 1, 9, 1),
    Sketcher.Constraint("Coincident", 9, 2, 10, 1),
    Sketcher.Constraint("Coincident", 10, 2, 11, 1),
    Sketcher.Constraint("Coincident", 11, 2, 8, 2),
    Sketcher.Constraint("Coincident", 3, 3, -1, 1),
    Sketcher.Constraint("Coincident", 4, 3, -1, 1),
    Sketcher.Constraint("Coincident", 6, 3, -1, 1),
    Sketcher.Constraint("Coincident", 8, 3, -1, 1),
    Sketcher.Constraint("Coincident", 10, 3, -1, 1),
    Sketcher.Constraint("Equal", 3, 4),
    Sketcher.Constraint("Equal", 4, 8),
    Sketcher.Constraint("Equal", 6, 10),
    Sketcher.Constraint("Symmetric", 0, 2, 1, 2, -2),
    Sketcher.Constraint("Parallel", 0, 2),
    Sketcher.Constraint("Horizontal", 7, 2, 8, 1),
    Sketcher.Constraint("Horizontal", 6, 2, 9, 2),
    Sketcher.Constraint("Horizontal", 5, 2, 10, 2),
    Sketcher.Constraint("Horizontal", 4, 1, 11, 2),
    Sketcher.Constraint("Radius", 3, Q("22.5 mm")),
    Sketcher.Constraint("Radius", 6, Q("24.2 mm")),
    Sketcher.Constraint("DistanceX", 1, 2, 0, 2, Q("7 mm")),
    Sketcher.Constraint("DistanceY", 5, 2, 6, 2, Q("3.5 mm")),
    Sketcher.Constraint("Radius", 1, Q("24.199816 mm")),
    Sketcher.Constraint("DistanceY", 7, 2, 6, 2, Q("1.579698 mm")),
    Sketcher.Constraint("Distance", 0, Q("1.71945 mm")),
    Sketcher.Constraint("DistanceY", -1, 1, 2, 2, Q("22.226108 mm")),
    Sketcher.Constraint("DistanceX", -1, 1, 4, 1, Q("13.94988 mm")),
    Sketcher.Constraint("DistanceX", -1, 1, 5, 2, Q("15.003871 mm")),
])
pocket7 = body.newObject("PartDesign::Pocket", "Pocket006")
pocket7.Profile = sketch11
pocket7.Length = 4
pocket7.Reversed = True

# Sketch on XY plane
sketch12 = body.newObject("Sketcher::SketchObject", "Sketch011")
sketch12.AttachmentSupport = (doc.getObject("XY_Plane"), [""])
sketch12.MapMode = "FlatFace"
add_polygon(sketch12, [(-27.001992, -14.5), (-27.001992, -12.05), (-22.501992, -12.05), (-22.501992, -16)])  # lines 0-3
add_polygon(sketch12, [(-22.501992, 12.05), (-27.001992, 12.05), (-27.001992, 14.5), (-22.501992, 16)])  # lines 4-7
sketch12.addGeometry(Part.LineSegment(Vector(24.90828, -17.45, 0), Vector(24.90828, -12.05, 0)), False)  # 8
sketch12.addGeometry(Part.LineSegment(Vector(24.90828, -12.05, 0), Vector(29.40828, -12.05, 0)), False)  # 9
sketch12.addGeometry(Part.LineSegment(Vector(29.40828, -12.05, 0), Vector(29.40828, -14.659417, 0)), False)  # 10
sketch12.addGeometry(Part.ArcOfCircle(Part.Circle(Vector(31.55828, -23.15, 0), Vector(0, 0, 1), 8.758567), math.radians(104.209844), math.radians(139.398705)), False)  # 11
sketch12.addGeometry(Part.LineSegment(Vector(24.90828, 12.05, 0), Vector(24.90828, 17.45, 0)), False)  # 12
sketch12.addGeometry(Part.ArcOfCircle(Part.Circle(Vector(31.55828, 23.15, 0), Vector(0, 0, 1), 8.758567), math.radians(-139.398705), math.radians(-104.209844)), False)  # 13
sketch12.addGeometry(Part.LineSegment(Vector(29.40828, 14.659417, 0), Vector(29.40828, 12.05, 0)), False)  # 14
sketch12.addGeometry(Part.LineSegment(Vector(29.40828, 12.05, 0), Vector(24.90828, 12.05, 0)), False)  # 15
sketch12.addConstraint([
    Sketcher.Constraint("Coincident", 8, 2, 9, 1),
    Sketcher.Constraint("Coincident", 9, 2, 10, 1),
    Sketcher.Constraint("Coincident", 10, 2, 11, 1),
    Sketcher.Constraint("Coincident", 11, 2, 8, 1),
    Sketcher.Constraint("Coincident", 12, 2, 13, 1),
    Sketcher.Constraint("Coincident", 13, 2, 14, 1),
    Sketcher.Constraint("Coincident", 14, 2, 15, 1),
    Sketcher.Constraint("Coincident", 15, 2, 12, 1),
    Sketcher.Constraint("Vertical", 0),
    Sketcher.Constraint("Horizontal", 1),
    Sketcher.Constraint("Vertical", 2),
    Sketcher.Constraint("Horizontal", 4),
    Sketcher.Constraint("Vertical", 5),
    Sketcher.Constraint("Vertical", 7),
    Sketcher.Constraint("Vertical", 8),
    Sketcher.Constraint("Horizontal", 9),
    Sketcher.Constraint("Vertical", 10),
    Sketcher.Constraint("Vertical", 12),
    Sketcher.Constraint("Vertical", 14),
    Sketcher.Constraint("Horizontal", 15),
    Sketcher.Constraint("Equal", 11, 13),
    Sketcher.Constraint("Symmetric", 11, 3, 13, 3, -1),
    Sketcher.Constraint("Symmetric", 0, 2, 4, 2, -1),
    Sketcher.Constraint("Symmetric", 2, 2, 6, 2, -1),
    Sketcher.Constraint("Symmetric", 9, 2, 14, 2, -1),
    Sketcher.Constraint("Horizontal", 1, 2, 8, 2),
    Sketcher.Constraint("Vertical", 11, 2, 12, 2),
    Sketcher.Constraint("Equal", 4, 9),
    Sketcher.Constraint("Equal", 0, 5),
    Sketcher.Constraint("DistanceX", 1, 1, 1, 2, Q("4.5 mm")),
    Sketcher.Constraint("DistanceY", 8, 1, 8, 2, Q("5.4 mm")),
    Sketcher.Constraint("DistanceY", 2, 2, -1, 1, Q("16 mm")),
    Sketcher.Constraint("DistanceY", 3, 2, 5, 2, Q("29 mm")),
    Sketcher.Constraint("DistanceY", 0, 1, 0, 2, Q("2.45 mm")),
    Sketcher.Constraint("DistanceY", 11, 3, 13, 3, Q("46.3 mm")),
    Sketcher.Constraint("DistanceX", 8, 2, 11, 3, Q("6.65 mm")),
    Sketcher.Constraint("DistanceX", -1, 1, 11, 3, Q("31.55828 mm")),
    Sketcher.Constraint("DistanceX", 0, 2, -1, 1, Q("27.001992 mm")),
])
pad5 = body.newObject("PartDesign::Pad", "Pad004")
pad5.Profile = sketch12
pad5.Length = 4
pad5.Reversed = True

# Sketch on XZ plane
sketch13 = body.newObject("Sketcher::SketchObject", "Sketch012")
sketch13.AttachmentSupport = (doc.getObject("XZ_Plane"), [""])
sketch13.MapMode = "FlatFace"
sketch13.AttachmentOffset = App.Placement(Vector(0, 0, -12.05), App.Rotation())
sketch13.addGeometry([
    Part.Circle(Vector(28.10828, -2.7, 0), Vector(0, 0, 1), 0.6),
    Part.Circle(Vector(-25.701992, -2.7, 0), Vector(0, 0, 1), 0.6),
], False)
sketch13.addConstraint([
    Sketcher.Constraint("Equal", 0, 1),
    Sketcher.Constraint("Horizontal", 0, 3, 1, 3),
    Sketcher.Constraint("Diameter", 0, Q("1.2 mm")),
    Sketcher.Constraint("DistanceY", 0, 3, -1, 1, Q("2.7 mm")),
    Sketcher.Constraint("DistanceX", -1, 1, 0, 3, Q("28.10828 mm")),
    Sketcher.Constraint("DistanceX", 1, 3, -1, 1, Q("25.701992 mm")),
])
pocket8 = body.newObject("PartDesign::Pocket", "Pocket007")
pocket8.Profile = sketch13
pocket8.Length = 2

# Sketch on XZ plane
sketch14 = body.newObject("Sketcher::SketchObject", "Sketch013")
sketch14.AttachmentSupport = (doc.getObject("XZ_Plane"), [""])
sketch14.MapMode = "FlatFace"
sketch14.AttachmentOffset = App.Placement(Vector(0, 0, 12.05), App.Rotation())
sketch14.addGeometry([
    Part.Circle(Vector(28.10828, -2.7, 0), Vector(0, 0, 1), 0.6),
    Part.Circle(Vector(-25.701992, -2.7, 0), Vector(0, 0, 1), 0.6),
], False)
sketch14.addConstraint([
    Sketcher.Constraint("Equal", 0, 1),
    Sketcher.Constraint("Horizontal", 0, 3, 1, 3),
    Sketcher.Constraint("Diameter", 0, Q("1.2 mm")),
    Sketcher.Constraint("DistanceY", 0, 3, -1, 1, Q("2.7 mm")),
    Sketcher.Constraint("DistanceX", -1, 1, 0, 3, Q("28.10828 mm")),
    Sketcher.Constraint("DistanceX", 1, 3, -1, 1, Q("25.701992 mm")),
])
pocket9 = body.newObject("PartDesign::Pocket", "Pocket008")
pocket9.Profile = sketch14
pocket9.Length = 2
pocket9.Reversed = True
doc.recompute()

fillet = body.newObject("PartDesign::Fillet", "Fillet")
fillet.Base = (pocket9, edges_at(pocket9, [
    (29.408, -13.355, 6.5),
    (29.408, 13.355, 6.5),
    (-27.002, -13.275, 6.5),
    (-27.002, 13.275, 6.5),
]))
fillet.Radius = 4
doc.recompute()

chamfer = body.newObject("PartDesign::Chamfer", "Chamfer")
chamfer.Base = (fillet, edges_at(fillet, [
    (24.908, -14.75, -4),
    (24.908, 14.75, -4),
    (-22.502, -14.025, -4),
    (-22.502, 14.025, -4),
]))
chamfer.Size = 2.5
doc.recompute()

fillet2 = body.newObject("PartDesign::Fillet", "Fillet001")
fillet2.Base = (chamfer, edges_at(chamfer, [
    (16.61, -17.6, 3.25),
    (-16.286, -17.9, 3.25),
    (16.61, 17.6, 3.25),
    (-16.286, 17.9, 3.25),
]))
fillet2.Radius = 5

doc.recompute()
